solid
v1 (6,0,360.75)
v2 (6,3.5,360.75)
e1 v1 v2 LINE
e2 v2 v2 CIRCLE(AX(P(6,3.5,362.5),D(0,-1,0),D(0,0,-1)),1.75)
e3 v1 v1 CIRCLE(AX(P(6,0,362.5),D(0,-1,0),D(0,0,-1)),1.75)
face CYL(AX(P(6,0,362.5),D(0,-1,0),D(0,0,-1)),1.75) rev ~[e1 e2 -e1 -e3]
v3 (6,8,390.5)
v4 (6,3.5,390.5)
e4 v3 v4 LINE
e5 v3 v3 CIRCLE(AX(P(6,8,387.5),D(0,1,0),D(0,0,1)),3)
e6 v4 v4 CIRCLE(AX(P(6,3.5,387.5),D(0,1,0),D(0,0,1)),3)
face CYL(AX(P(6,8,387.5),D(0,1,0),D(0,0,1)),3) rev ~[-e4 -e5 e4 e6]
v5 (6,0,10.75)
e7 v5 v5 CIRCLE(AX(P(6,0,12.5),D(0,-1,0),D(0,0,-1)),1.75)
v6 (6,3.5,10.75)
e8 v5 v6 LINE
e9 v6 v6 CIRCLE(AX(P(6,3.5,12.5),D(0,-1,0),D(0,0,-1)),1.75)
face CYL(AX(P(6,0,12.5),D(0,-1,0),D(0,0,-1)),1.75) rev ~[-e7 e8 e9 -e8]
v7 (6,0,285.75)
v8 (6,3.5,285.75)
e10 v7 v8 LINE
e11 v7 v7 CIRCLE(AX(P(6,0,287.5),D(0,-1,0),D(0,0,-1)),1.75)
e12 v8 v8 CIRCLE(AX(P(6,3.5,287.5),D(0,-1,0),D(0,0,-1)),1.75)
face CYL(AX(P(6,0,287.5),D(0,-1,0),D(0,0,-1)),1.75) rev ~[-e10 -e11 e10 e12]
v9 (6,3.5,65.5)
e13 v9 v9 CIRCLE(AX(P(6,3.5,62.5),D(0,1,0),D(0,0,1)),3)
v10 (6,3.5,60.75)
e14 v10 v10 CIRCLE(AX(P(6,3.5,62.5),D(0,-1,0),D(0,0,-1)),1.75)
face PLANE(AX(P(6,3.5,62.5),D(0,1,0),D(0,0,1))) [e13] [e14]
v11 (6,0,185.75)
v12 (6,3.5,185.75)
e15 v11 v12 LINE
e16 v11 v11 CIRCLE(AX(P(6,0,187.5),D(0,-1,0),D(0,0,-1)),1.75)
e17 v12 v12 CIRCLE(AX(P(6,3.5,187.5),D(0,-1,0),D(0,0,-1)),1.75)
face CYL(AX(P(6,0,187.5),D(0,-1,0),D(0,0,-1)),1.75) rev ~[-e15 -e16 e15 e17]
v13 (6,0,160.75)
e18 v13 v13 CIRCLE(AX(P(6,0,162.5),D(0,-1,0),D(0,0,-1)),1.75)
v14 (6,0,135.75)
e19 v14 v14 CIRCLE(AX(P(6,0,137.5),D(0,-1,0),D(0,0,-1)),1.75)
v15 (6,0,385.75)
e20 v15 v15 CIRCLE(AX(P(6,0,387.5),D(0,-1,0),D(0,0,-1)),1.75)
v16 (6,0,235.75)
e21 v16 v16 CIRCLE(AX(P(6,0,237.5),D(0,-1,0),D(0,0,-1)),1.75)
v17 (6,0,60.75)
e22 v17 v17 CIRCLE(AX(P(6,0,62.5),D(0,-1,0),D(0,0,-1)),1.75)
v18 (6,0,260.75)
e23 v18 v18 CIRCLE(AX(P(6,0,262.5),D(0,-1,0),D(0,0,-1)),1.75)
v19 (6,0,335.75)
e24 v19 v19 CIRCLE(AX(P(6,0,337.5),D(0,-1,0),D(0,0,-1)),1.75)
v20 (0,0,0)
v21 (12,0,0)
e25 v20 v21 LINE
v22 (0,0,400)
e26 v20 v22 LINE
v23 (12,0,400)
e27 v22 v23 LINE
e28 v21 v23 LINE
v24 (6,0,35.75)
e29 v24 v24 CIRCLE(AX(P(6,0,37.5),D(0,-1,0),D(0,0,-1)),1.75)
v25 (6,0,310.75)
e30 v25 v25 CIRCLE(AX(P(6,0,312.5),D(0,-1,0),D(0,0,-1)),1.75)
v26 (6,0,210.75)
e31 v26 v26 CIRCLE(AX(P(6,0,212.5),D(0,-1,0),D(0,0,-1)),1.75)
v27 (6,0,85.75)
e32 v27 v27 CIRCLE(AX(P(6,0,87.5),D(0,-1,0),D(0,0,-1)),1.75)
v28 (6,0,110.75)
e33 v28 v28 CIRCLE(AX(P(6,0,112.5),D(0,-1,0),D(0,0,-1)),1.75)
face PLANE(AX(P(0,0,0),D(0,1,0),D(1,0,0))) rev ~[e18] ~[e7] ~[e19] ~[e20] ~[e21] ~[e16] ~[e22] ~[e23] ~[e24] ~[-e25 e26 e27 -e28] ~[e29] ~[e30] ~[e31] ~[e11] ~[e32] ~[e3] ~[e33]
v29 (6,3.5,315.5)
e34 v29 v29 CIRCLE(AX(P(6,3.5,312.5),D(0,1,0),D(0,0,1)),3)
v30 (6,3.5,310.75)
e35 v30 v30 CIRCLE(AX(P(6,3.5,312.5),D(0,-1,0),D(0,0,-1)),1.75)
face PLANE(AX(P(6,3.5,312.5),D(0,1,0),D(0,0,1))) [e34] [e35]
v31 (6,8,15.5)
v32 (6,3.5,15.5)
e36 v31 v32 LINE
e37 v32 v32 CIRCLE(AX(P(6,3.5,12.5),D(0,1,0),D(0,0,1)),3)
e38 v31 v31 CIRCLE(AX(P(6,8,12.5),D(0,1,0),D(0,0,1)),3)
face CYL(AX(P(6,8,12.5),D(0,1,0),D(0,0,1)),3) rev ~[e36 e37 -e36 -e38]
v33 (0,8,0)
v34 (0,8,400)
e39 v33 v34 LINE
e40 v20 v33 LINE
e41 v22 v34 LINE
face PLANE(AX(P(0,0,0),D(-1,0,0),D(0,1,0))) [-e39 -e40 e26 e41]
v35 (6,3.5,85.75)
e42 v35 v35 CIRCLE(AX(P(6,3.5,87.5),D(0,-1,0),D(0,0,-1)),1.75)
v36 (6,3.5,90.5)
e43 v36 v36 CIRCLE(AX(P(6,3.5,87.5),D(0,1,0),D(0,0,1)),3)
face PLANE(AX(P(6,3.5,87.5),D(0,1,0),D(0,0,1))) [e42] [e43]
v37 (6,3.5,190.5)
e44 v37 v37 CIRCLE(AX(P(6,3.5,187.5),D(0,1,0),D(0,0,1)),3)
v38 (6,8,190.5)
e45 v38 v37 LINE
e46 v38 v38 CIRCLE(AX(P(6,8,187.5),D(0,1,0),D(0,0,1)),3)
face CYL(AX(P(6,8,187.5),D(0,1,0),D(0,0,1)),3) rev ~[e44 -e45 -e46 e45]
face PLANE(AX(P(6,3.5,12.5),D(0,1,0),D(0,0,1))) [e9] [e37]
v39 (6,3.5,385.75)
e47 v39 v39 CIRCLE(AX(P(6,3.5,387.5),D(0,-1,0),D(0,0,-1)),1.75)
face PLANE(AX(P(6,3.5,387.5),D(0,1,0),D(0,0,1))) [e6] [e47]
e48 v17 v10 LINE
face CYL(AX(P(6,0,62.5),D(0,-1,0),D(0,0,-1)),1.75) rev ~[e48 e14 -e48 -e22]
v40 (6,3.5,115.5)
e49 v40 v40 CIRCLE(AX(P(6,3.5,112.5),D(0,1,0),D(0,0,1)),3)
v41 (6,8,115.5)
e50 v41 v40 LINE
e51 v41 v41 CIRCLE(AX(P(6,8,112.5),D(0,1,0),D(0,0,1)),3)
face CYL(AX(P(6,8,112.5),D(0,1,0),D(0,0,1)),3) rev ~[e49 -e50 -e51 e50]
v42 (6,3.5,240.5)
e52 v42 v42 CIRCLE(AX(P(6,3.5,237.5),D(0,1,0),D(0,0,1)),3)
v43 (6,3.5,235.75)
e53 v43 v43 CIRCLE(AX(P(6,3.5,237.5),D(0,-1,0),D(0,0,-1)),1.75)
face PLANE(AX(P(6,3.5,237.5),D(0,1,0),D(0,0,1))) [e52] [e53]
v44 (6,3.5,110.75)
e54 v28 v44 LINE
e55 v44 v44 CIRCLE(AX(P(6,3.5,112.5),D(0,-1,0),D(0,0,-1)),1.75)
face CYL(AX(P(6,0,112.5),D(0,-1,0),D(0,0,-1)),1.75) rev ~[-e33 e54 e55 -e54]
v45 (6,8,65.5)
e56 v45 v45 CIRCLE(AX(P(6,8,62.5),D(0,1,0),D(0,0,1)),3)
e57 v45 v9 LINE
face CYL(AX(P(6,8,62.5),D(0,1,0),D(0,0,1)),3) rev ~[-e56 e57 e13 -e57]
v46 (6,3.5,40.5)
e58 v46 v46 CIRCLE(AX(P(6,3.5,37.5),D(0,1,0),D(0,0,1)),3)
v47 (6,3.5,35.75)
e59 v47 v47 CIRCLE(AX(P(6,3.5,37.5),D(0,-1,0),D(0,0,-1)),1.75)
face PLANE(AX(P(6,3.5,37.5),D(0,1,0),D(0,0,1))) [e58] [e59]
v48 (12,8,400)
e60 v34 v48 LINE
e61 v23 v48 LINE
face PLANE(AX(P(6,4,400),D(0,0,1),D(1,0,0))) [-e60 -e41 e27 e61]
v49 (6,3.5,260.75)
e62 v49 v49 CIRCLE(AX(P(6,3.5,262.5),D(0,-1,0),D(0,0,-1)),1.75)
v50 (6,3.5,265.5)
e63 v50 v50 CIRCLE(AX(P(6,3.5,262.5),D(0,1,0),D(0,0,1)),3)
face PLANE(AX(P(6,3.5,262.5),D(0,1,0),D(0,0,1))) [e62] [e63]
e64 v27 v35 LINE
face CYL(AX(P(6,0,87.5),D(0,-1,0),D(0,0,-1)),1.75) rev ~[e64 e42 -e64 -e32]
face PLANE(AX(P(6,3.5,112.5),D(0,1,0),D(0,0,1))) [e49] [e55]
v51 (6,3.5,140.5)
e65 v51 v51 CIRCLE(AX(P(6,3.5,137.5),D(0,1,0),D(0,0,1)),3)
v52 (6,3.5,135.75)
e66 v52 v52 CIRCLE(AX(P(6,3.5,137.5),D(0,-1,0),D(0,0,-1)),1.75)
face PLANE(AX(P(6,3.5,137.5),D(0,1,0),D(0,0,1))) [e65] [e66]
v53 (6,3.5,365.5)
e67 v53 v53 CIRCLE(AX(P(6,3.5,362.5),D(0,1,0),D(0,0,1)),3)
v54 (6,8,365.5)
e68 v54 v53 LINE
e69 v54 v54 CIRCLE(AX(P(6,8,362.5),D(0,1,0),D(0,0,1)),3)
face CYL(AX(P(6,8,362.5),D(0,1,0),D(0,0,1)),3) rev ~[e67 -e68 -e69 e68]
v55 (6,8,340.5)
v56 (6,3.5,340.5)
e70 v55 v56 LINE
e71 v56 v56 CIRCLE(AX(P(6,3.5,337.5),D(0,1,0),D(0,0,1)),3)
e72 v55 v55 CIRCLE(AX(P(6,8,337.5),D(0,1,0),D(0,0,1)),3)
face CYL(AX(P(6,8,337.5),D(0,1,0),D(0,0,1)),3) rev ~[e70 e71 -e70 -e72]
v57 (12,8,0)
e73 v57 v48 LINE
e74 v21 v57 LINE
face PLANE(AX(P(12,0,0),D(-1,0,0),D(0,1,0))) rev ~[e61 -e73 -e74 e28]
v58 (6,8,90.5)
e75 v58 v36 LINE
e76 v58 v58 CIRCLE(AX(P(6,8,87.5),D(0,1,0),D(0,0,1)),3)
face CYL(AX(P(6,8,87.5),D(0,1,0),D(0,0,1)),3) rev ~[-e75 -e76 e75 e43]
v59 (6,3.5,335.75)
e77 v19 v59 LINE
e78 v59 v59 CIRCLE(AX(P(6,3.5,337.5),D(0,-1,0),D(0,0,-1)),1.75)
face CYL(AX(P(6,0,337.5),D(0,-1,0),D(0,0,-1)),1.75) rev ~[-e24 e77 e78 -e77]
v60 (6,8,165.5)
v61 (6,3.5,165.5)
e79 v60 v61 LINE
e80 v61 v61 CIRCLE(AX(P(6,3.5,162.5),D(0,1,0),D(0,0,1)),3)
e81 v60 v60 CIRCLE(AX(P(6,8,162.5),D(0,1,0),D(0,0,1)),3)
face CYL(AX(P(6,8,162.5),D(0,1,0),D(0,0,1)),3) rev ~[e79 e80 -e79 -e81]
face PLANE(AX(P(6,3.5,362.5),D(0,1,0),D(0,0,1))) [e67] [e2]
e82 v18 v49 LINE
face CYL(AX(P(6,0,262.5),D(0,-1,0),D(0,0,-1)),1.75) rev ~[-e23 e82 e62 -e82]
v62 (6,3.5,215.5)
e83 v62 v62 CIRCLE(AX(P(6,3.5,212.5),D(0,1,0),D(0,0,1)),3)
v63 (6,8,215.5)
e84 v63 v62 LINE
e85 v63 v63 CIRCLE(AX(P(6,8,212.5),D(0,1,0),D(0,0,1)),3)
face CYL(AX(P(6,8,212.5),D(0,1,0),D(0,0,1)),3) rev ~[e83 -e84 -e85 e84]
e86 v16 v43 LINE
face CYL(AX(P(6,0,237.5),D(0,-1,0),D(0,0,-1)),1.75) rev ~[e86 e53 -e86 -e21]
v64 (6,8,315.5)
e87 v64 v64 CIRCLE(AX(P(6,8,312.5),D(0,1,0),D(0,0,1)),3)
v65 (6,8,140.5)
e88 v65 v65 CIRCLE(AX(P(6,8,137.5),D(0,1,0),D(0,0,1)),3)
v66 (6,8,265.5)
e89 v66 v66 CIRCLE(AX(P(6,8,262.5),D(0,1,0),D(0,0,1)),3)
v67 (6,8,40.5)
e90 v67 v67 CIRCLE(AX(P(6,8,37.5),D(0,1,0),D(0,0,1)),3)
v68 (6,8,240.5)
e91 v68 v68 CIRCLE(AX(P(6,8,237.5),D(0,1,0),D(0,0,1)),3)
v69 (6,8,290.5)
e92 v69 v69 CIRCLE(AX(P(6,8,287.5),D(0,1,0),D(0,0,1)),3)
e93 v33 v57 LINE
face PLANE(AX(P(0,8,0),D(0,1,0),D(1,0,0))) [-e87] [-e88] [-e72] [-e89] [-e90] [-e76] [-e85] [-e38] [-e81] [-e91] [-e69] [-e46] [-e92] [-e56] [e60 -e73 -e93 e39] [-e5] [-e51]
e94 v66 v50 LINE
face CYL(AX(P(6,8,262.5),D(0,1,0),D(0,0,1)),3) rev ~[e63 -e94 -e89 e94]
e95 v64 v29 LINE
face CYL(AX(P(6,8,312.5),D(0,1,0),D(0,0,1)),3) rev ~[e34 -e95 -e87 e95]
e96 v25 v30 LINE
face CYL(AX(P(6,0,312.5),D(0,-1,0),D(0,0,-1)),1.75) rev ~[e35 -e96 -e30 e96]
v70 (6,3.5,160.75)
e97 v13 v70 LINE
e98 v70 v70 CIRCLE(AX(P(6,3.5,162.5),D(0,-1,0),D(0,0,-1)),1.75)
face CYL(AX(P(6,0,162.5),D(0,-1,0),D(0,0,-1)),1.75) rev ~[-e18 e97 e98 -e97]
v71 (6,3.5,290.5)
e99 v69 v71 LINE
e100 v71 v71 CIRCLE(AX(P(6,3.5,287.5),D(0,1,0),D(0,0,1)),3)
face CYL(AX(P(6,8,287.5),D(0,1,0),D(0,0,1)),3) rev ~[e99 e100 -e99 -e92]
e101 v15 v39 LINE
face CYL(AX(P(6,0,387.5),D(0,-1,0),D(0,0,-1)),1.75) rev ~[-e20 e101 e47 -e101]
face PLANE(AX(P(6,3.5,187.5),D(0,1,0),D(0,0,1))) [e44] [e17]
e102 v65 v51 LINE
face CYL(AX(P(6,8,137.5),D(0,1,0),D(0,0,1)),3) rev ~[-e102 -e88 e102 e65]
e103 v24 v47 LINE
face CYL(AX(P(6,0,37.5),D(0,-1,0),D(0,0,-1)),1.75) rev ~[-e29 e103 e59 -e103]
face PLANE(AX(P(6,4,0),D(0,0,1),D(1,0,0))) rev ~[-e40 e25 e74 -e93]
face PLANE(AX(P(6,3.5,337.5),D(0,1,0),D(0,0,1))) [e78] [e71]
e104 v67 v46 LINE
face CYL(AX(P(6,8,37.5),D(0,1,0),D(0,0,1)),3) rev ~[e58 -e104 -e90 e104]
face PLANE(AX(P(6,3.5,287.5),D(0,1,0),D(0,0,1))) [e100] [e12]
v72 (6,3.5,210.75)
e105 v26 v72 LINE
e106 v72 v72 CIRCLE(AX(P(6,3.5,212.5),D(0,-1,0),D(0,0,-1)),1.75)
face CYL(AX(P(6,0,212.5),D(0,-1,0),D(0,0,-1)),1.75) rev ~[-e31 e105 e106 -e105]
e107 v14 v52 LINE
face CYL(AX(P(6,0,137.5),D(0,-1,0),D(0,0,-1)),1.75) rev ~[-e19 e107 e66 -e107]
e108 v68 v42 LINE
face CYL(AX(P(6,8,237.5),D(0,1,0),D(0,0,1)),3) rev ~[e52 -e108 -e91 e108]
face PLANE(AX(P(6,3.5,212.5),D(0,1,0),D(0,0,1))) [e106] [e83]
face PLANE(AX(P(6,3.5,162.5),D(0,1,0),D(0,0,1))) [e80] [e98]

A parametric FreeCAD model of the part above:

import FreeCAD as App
import Part
import Sketcher
from FreeCAD import Vector
Q = App.Units.Quantity

doc = App.newDocument("Part")
body = doc.addObject("PartDesign::Body", "Body")

# Sketch on XY plane
sketch1 = body.newObject("Sketcher::SketchObject", "Sketch")
sketch1.AttachmentSupport = (doc.getObject("XY_Plane"), [""])
sketch1.MapMode = "FlatFace"
sketch1.addGeometry([
    Part.LineSegment(Vector(0, 8, 0), Vector(0, 0, 0)),
    Part.LineSegment(Vector(0, 0, 0), Vector(12, 0, 0)),
    Part.LineSegment(Vector(12, 0, 0), Vector(12, 8, 0)),
    Part.LineSegment(Vector(12, 8, 0), Vector(0, 8, 0)),
], False)
sketch1.addConstraint([
    Sketcher.Constraint("Coincident", 0, 2, 1, 1),
    Sketcher.Constraint("Coincident", 1, 2, 2, 1),
    Sketcher.Constraint("Coincident", 2, 2, 3, 1),
    Sketcher.Constraint("Coincident", 3, 2, 0, 1),
    Sketcher.Constraint("Vertical", 0),
    Sketcher.Constraint("Horizontal", 1),
    Sketcher.Constraint("Vertical", 2),
    Sketcher.Constraint("Horizontal", 3),
    Sketcher.Constraint("Coincident", 0, 2, -1, 1),
    Sketcher.Constraint("DistanceX", 1, 1, 1, 2, Q("12 mm")),
    Sketcher.Constraint("DistanceY", 0, 2, 0, 1, Q("8 mm")),
])
pad1 = body.newObject("PartDesign::Pad", "Pad")
pad1.Profile = sketch1
pad1.Length = 400

# Sketch on XZ plane
sketch2 = body.newObject("Sketcher::SketchObject", "Sketch001")
sketch2.AttachmentSupport = (doc.getObject("XZ_Plane"), [""])
sketch2.MapMode = "FlatFace"
sketch2.AttachmentOffset = App.Placement(Vector(0, 0, -8), App.Rotation())
sketch2.addGeometry(Part.Circle(Vector(6, 12.5, 0), Vector(0, 0, 1), 3), False)
sketch2.addConstraint([
    Sketcher.Constraint("Diameter", 0, Q("6 mm")),
    Sketcher.Constraint("DistanceX", -1, 1, 0, 3, Q("6 mm")),
    Sketcher.Constraint("DistanceY", -1, 1, 0, 3, Q("12.5 mm")),
])
pocket1 = body.newObject("PartDesign::Pocket", "Pocket")
pocket1.Profile = sketch2
pocket1.Length = 4.5
pocket1.Reversed = True

# Sketch on XZ plane
sketch3 = body.newObject("Sketcher::SketchObject", "Sketch002")
sketch3.AttachmentSupport = (doc.getObject("XZ_Plane"), [""])
sketch3.MapMode = "FlatFace"
sketch3.addGeometry(Part.Circle(Vector(6, 12.5, 0), Vector(0, 0, 1), 1.8), False)
sketch3.addConstraint([
    Sketcher.Constraint("Diameter", 0, Q("3.5 mm")),
    Sketcher.Constraint("DistanceX", -1, 1, 0, 3, Q("6 mm")),
    Sketcher.Constraint("DistanceY", -1, 1, 0, 3, Q("12.5 mm")),
])
pocket2 = body.newObject("PartDesign::Pocket", "Pocket001")
pocket2.Profile = sketch3
pocket2.Type = "ThroughAll"
doc.recompute()

linearpattern = body.newObject("PartDesign::LinearPattern", "LinearPattern")
linearpattern.Originals = [pocket1, pocket2]
linearpattern.Direction = (doc.getObject("Z_Axis"), [""])
linearpattern.Mode = "offset"
linearpattern.Offset = 25
linearpattern.Occurrences = 16
body.Tip = linearpattern

doc.recompute()
